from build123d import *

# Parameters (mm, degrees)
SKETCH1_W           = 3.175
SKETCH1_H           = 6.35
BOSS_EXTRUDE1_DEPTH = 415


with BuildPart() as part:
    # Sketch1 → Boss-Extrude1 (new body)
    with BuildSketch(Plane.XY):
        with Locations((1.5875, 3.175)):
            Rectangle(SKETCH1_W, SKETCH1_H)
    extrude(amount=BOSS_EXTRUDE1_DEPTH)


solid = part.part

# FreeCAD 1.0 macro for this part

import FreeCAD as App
import Part
import Sketcher
Q = App.Units.Quantity

doc = App.newDocument("Part")
params = doc.addObject("Spreadsheet::Sheet", "Params")
for row, (alias, value) in enumerate([
    ("sketch1_height", "0.25 in"),
    ("sketch1_width", "0.125 in"),
    ("pad1_length", "415 mm"),
], start=1):
    params.set(f"A{row}", alias)
    params.set(f"B{row}", "=" + value)
    params.setAlias(f"B{row}", alias)

body = doc.addObject("PartDesign::Body", "Body")

# Sketch on XY plane
sketch1 = body.newObject("Sketcher::SketchObject", "Sketch")
sketch1.AttachmentSupport = (doc.getObject("XY_Plane"), [""])
sketch1.MapMode = "FlatFace"
sketch1.addGeometry([
    Part.LineSegment(App.Vector(0, 6.3, 0), App.Vector(0, 0, 0)),
    Part.LineSegment(App.Vector(0, 0, 0), App.Vector(3.2, 0, 0)),
    Part.LineSegment(App.Vector(3.2, 0, 0), App.Vector(3.2, 6.3, 0)),
    Part.LineSegment(App.Vector(3.2, 6.3, 0), App.Vector(0, 6.3, 0)),
], False)
sketch1.addConstraint([
    Sketcher.Constraint("Coincident", 0, 2, 1, 1),
    Sketcher.Constraint("Coincident", 1, 2, 2, 1),
    Sketcher.Constraint("Coincident", 2, 2, 3, 1),
    Sketcher.Constraint("Coincident", 3, 2, 0, 1),
    Sketcher.Constraint("Vertical", 0),
    Sketcher.Constraint("Horizontal", 1),
    Sketcher.Constraint("Vertical", 2),
    Sketcher.Constraint("Horizontal", 3),
    Sketcher.Constraint("Coincident", 0, 2, -1, 1),
    Sketcher.Constraint("DistanceY", 0, 2, 0, 1, Q("0.25 in")),
    Sketcher.Constraint("DistanceX", 1, 1, 1, 2, Q("0.125 in")),
])
sketch1.setExpression("Constraints[9]", "Params.sketch1_height")
sketch1.setExpression("Constraints[10]", "Params.sketch1_width")
pad1 = body.newObject("PartDesign::Pad", "Pad")
pad1.Profile = sketch1
pad1.setExpression("Length", "Params.pad1_length")

doc.recompute()
